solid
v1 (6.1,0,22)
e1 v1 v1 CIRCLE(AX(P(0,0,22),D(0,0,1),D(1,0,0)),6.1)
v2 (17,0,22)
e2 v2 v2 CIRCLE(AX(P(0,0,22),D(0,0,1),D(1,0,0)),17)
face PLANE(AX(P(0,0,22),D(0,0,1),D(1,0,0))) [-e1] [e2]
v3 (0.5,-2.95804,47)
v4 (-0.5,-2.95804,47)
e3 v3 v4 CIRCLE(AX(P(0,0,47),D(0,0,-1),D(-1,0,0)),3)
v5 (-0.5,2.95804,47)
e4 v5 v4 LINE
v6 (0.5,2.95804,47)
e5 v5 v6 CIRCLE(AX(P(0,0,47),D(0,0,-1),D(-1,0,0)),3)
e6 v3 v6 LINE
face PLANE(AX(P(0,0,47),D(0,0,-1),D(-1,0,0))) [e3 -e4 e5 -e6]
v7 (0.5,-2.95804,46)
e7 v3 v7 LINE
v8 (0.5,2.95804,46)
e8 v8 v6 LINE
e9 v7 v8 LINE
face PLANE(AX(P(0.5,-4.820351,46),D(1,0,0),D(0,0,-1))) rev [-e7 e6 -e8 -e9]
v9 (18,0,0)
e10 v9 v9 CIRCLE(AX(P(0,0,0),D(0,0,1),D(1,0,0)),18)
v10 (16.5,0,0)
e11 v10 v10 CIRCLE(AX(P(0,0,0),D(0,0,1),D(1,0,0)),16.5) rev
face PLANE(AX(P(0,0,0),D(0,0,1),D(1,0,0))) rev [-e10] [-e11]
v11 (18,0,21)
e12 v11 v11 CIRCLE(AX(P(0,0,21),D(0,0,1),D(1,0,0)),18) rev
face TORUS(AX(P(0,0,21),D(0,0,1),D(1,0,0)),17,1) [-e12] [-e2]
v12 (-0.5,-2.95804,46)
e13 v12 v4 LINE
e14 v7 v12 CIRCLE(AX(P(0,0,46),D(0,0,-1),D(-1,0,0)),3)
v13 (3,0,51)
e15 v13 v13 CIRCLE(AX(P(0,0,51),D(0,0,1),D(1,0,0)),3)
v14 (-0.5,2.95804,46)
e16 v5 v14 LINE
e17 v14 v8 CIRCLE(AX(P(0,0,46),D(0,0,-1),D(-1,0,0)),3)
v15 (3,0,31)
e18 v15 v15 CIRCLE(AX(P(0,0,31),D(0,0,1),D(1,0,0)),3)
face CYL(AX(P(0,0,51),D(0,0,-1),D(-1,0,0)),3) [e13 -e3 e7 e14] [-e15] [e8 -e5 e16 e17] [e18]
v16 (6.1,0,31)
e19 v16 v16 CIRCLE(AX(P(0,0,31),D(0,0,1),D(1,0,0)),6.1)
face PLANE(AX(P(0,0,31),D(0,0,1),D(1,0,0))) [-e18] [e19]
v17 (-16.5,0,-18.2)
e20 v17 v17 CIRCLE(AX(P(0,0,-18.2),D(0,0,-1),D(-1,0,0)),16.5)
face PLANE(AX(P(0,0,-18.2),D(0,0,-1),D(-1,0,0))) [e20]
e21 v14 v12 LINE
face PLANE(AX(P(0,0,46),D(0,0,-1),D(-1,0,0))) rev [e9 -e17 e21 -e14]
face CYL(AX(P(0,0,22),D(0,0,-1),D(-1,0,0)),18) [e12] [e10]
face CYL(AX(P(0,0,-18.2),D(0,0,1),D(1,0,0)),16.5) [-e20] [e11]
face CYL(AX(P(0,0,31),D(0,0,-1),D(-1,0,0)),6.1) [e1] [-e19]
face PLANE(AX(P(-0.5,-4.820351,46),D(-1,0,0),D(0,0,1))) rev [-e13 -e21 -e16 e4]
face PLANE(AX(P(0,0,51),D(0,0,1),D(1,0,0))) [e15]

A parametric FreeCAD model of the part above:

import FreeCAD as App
import Part
import Sketcher

V = App.Vector


def edges_at(feature, points):
    """Names of the edges that pass closest to the given points."""
    edges = feature.Shape.Edges
    near = lambda p: min(range(len(edges)), key=lambda i: edges[i].distToShape(Part.Vertex(*p))[0])
    return sorted({f"Edge{near(p) + 1}" for p in points})


def add_polygon(sketch, points):
    """Adds a closed chain of lines whose ends are joined by coincident constraints."""
    first, n = sketch.GeometryCount, len(points)
    for a, b in zip(points, points[1:] + points[:1]):
        sketch.addGeometry(Part.LineSegment(App.Vector(*a, 0), App.Vector(*b, 0)), False)
    for i in range(n):
        sketch.addConstraint(Sketcher.Constraint("Coincident", first + i, 2, first + (i + 1) % n, 1))

doc = App.newDocument("Part")
body = doc.addObject("PartDesign::Body", "Body")

sketch1 = body.newObject("Sketcher::SketchObject", "Sketch")
sketch1.AttachmentSupport = (doc.getObject("XY_Plane"), [""])
sketch1.MapMode = "FlatFace"
sketch1.addGeometry(Part.Circle(V(0, 0, 0), V(0, 0, 1), 18), False)
sketch1.addConstraint(Sketcher.Constraint("Coincident", 0, 3, -1, 1))
sketch1.addConstraint(Sketcher.Constraint("Diameter", 0, 36.0))
pad1 = body.newObject("PartDesign::Pad", "Pad")
pad1.Profile = sketch1
pad1.Length = 22

sketch2 = body.newObject("Sketcher::SketchObject", "Sketch001")
sketch2.AttachmentSupport = (doc.getObject("XY_Plane"), [""])
sketch2.MapMode = "FlatFace"
sketch2.AttachmentOffset = App.Placement(V(0, 0, 22), App.Rotation())
sketch2.addGeometry(Part.Circle(V(0, 0, 0), V(0, 0, 1), 6.1), False)
sketch2.addConstraint(Sketcher.Constraint("Coincident", 0, 3, -1, 1))
sketch2.addConstraint(Sketcher.Constraint("Diameter", 0, 12.2))
pad2 = body.newObject("PartDesign::Pad", "Pad001")
pad2.Profile = sketch2
pad2.Length = 9

sketch3 = body.newObject("Sketcher::SketchObject", "Sketch002")
sketch3.AttachmentSupport = (doc.getObject("XY_Plane"), [""])
sketch3.MapMode = "FlatFace"
sketch3.AttachmentOffset = App.Placement(V(0, 0, 31), App.Rotation())
sketch3.addGeometry(Part.Circle(V(0, 0, 0), V(0, 0, 1), 3), False)
sketch3.addConstraint(Sketcher.Constraint("Coincident", 0, 3, -1, 1))
sketch3.addConstraint(Sketcher.Constraint("Diameter", 0, 6.0))
pad3 = body.newObject("PartDesign::Pad", "Pad002")
pad3.Profile = sketch3
pad3.Length = 20

sketch4 = body.newObject("Sketcher::SketchObject", "Sketch003")
sketch4.AttachmentSupport = (doc.getObject("XY_Plane"), [""])
sketch4.MapMode = "FlatFace"
sketch4.addGeometry(Part.Circle(V(0, 0, 0), V(0, 0, 1), 16.5), False)
sketch4.addConstraint(Sketcher.Constraint("Coincident", 0, 3, -1, 1))
sketch4.addConstraint(Sketcher.Constraint("Diameter", 0, 33.0))
pad4 = body.newObject("PartDesign::Pad", "Pad003")
pad4.Profile = sketch4
pad4.Length = 18.2
pad4.Reversed = True
doc.recompute()

fillet = body.newObject("PartDesign::Fillet", "Fillet")
fillet.Base = (pad4, edges_at(pad4, [(-18, 0, 22)]))
fillet.Radius = 1

sketch5 = body.newObject("Sketcher::SketchObject", "Sketch004")
sketch5.AttachmentSupport = (doc.getObject("XY_Plane"), [""])
sketch5.MapMode = "FlatFace"
sketch5.AttachmentOffset = App.Placement(V(0, 0, 47), App.Rotation())
add_polygon(sketch5, [(-0.5, 4.820351), (-0.5, -4.820351), (0.5, -4.820351), (0.5, 4.820351)])
sketch5.addConstraint(Sketcher.Constraint("Vertical", 0))
sketch5.addConstraint(Sketcher.Constraint("Horizontal", 1))
sketch5.addConstraint(Sketcher.Constraint("Vertical", 2))
sketch5.addConstraint(Sketcher.Constraint("Horizontal", 3))
sketch5.addConstraint(Sketcher.Constraint("Symmetric", 0, 2, 2, 2, -1, 1))
sketch5.addConstraint(Sketcher.Constraint("DistanceX", 1, 1, 1, 2, 1.0))
sketch5.addConstraint(Sketcher.Constraint("DistanceY", 0, 2, 0, 1, 9.640703))
pocket1 = body.newObject("PartDesign::Pocket", "Pocket")
pocket1.Profile = sketch5
pocket1.Length = 1

doc.recompute()
